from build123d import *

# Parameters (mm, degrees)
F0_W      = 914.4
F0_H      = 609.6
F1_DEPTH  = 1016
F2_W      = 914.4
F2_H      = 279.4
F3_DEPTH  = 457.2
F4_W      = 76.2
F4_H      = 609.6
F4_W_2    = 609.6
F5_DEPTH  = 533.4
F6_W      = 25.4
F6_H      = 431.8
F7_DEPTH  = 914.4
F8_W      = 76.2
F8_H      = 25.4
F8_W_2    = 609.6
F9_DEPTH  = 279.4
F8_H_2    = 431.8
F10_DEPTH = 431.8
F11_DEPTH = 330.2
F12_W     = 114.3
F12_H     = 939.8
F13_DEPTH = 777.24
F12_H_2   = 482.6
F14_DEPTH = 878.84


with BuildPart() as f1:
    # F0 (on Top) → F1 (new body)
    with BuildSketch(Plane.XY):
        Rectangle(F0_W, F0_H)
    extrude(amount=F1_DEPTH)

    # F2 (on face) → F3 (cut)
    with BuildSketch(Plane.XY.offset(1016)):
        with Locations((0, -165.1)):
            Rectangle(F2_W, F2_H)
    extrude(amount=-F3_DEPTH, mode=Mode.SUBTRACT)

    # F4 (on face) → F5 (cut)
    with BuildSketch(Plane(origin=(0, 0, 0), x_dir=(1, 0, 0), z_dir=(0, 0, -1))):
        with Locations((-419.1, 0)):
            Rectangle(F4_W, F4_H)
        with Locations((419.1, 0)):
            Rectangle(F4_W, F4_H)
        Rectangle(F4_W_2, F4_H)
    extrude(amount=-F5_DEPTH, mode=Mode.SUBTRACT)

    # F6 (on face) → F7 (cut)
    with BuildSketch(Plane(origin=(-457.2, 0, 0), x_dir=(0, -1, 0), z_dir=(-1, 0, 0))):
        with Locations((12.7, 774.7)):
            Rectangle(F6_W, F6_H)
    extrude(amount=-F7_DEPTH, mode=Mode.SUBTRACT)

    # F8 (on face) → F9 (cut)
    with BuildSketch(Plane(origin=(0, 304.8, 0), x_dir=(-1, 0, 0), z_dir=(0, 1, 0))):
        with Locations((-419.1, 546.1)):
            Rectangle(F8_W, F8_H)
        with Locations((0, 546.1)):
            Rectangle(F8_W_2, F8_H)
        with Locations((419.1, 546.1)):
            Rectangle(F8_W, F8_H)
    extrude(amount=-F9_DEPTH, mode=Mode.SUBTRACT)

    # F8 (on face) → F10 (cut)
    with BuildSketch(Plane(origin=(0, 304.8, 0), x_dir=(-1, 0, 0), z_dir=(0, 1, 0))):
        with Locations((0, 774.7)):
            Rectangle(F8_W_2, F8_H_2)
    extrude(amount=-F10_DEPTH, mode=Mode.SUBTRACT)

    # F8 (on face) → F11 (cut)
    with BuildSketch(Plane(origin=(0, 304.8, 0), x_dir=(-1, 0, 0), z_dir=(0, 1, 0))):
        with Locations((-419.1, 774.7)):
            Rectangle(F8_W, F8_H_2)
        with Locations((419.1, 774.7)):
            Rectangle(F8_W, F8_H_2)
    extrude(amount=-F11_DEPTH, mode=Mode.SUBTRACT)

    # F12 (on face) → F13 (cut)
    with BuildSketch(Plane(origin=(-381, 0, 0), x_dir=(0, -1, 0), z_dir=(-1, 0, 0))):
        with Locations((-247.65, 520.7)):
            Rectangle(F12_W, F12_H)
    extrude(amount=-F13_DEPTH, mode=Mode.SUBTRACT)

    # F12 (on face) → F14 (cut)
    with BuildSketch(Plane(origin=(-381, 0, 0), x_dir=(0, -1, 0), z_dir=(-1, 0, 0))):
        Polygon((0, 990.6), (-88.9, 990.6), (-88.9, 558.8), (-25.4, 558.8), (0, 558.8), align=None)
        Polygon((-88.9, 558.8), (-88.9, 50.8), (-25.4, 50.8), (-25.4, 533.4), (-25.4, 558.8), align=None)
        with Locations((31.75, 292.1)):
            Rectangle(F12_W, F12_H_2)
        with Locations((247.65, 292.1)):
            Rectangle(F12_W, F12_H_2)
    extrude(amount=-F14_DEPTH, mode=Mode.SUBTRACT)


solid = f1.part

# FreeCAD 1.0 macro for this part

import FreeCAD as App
import Part
import Sketcher
from FreeCAD import Vector
Q = App.Units.Quantity

doc = App.newDocument("Part")
body = doc.addObject("PartDesign::Body", "Body")

# Sketch on XY plane
sketch1 = doc.addObject("Sketcher::SketchObject", "Sketch")
body.addObject(sketch1)
sketch1.AttachmentSupport = (doc.XY_Plane, [""])
sketch1.MapMode = "FlatFace"
sketch1.addGeometry(Part.LineSegment(Vector(-457, 305, 0), Vector(-457, -305, 0)), False)
sketch1.addGeometry(Part.LineSegment(Vector(-457, -305, 0), Vector(457, -305, 0)), False)
sketch1.addGeometry(Part.LineSegment(Vector(457, -305, 0), Vector(457, 305, 0)), False)
sketch1.addGeometry(Part.LineSegment(Vector(457, 305, 0), Vector(-457, 305, 0)), False)
sketch1.addConstraint(Sketcher.Constraint("Coincident", 0, 2, 1, 1))
sketch1.addConstraint(Sketcher.Constraint("Coincident", 1, 2, 2, 1))
sketch1.addConstraint(Sketcher.Constraint("Coincident", 2, 2, 3, 1))
sketch1.addConstraint(Sketcher.Constraint("Coincident", 3, 2, 0, 1))
sketch1.addConstraint(Sketcher.Constraint("Vertical", 0))
sketch1.addConstraint(Sketcher.Constraint("Horizontal", 1))
sketch1.addConstraint(Sketcher.Constraint("Vertical", 2))
sketch1.addConstraint(Sketcher.Constraint("Horizontal", 3))
sketch1.addConstraint(Sketcher.Constraint("Symmetric", 0, 2, 2, 2, -1, 1))
sketch1.addConstraint(Sketcher.Constraint("DistanceX", 1, 1, 1, 2, Q("36 in")))
sketch1.addConstraint(Sketcher.Constraint("DistanceY", 0, 2, 0, 1, Q("24 in")))
pad1 = doc.addObject("PartDesign::Pad", "Pad")
body.addObject(pad1)
pad1.Profile = sketch1
pad1.Length = Q("40 in")

# Sketch on XY plane
sketch2 = doc.addObject("Sketcher::SketchObject", "Sketch001")
body.addObject(sketch2)
sketch2.AttachmentSupport = (doc.XY_Plane, [""])
sketch2.MapMode = "FlatFace"
sketch2.AttachmentOffset = App.Placement(Vector(0, 0, 40 * 25.4), App.Rotation())
sketch2.addGeometry(Part.LineSegment(Vector(-457, -25, 0), Vector(-457, -305, 0)), False)
sketch2.addGeometry(Part.LineSegment(Vector(-457, -305, 0), Vector(457, -305, 0)), False)
sketch2.addGeometry(Part.LineSegment(Vector(457, -305, 0), Vector(457, -25, 0)), False)
sketch2.addGeometry(Part.LineSegment(Vector(457, -25, 0), Vector(-457, -25, 0)), False)
sketch2.addConstraint(Sketcher.Constraint("Coincident", 0, 2, 1, 1))
sketch2.addConstraint(Sketcher.Constraint("Coincident", 1, 2, 2, 1))
sketch2.addConstraint(Sketcher.Constraint("Coincident", 2, 2, 3, 1))
sketch2.addConstraint(Sketcher.Constraint("Coincident", 3, 2, 0, 1))
sketch2.addConstraint(Sketcher.Constraint("Vertical", 0))
sketch2.addConstraint(Sketcher.Constraint("Horizontal", 1))
sketch2.addConstraint(Sketcher.Constraint("Vertical", 2))
sketch2.addConstraint(Sketcher.Constraint("Horizontal", 3))
sketch2.addConstraint(Sketcher.Constraint("DistanceX", 1, 1, 1, 2, Q("36 in")))
sketch2.addConstraint(Sketcher.Constraint("DistanceY", 0, 2, 0, 1, Q("11 in")))
sketch2.addConstraint(Sketcher.Constraint("DistanceX", 0, 2, -1, 1, Q("18 in")))
sketch2.addConstraint(Sketcher.Constraint("DistanceY", 0, 2, -1, 1, Q("12 in")))
pocket1 = doc.addObject("PartDesign::Pocket", "Pocket")
body.addObject(pocket1)
pocket1.Profile = sketch2
pocket1.Length = Q("18 in")

# Sketch on XY plane
sketch3 = doc.addObject("Sketcher::SketchObject", "Sketch002")
body.addObject(sketch3)
sketch3.AttachmentSupport = (doc.XY_Plane, [""])
sketch3.MapMode = "FlatFace"
sketch3.addGeometry(Part.LineSegment(Vector(-457, -305, 0), Vector(-457, 305, 0)), False)
sketch3.addGeometry(Part.LineSegment(Vector(-457, 305, 0), Vector(-381, 305, 0)), False)
sketch3.addGeometry(Part.LineSegment(Vector(-381, 305, 0), Vector(-381, -305, 0)), False)
sketch3.addGeometry(Part.LineSegment(Vector(-381, -305, 0), Vector(-457, -305, 0)), False)
sketch3.addGeometry(Part.LineSegment(Vector(381, -305, 0), Vector(381, 305, 0)), False)
sketch3.addGeometry(Part.LineSegment(Vector(381, 305, 0), Vector(457, 305, 0)), False)
sketch3.addGeometry(Part.LineSegment(Vector(457, 305, 0), Vector(457, -305, 0)), False)
sketch3.addGeometry(Part.LineSegment(Vector(457, -305, 0), Vector(381, -305, 0)), False)
sketch3.addGeometry(Part.LineSegment(Vector(-305, -305, 0), Vector(-305, 305, 0)), False)
sketch3.addGeometry(Part.LineSegment(Vector(-305, 305, 0), Vector(305, 305, 0)), False)
sketch3.addGeometry(Part.LineSegment(Vector(305, 305, 0), Vector(305, -305, 0)), False)
sketch3.addGeometry(Part.LineSegment(Vector(305, -305, 0), Vector(-305, -305, 0)), False)
sketch3.addConstraint(Sketcher.Constraint("Coincident", 0, 2, 1, 1))
sketch3.addConstraint(Sketcher.Constraint("Coincident", 1, 2, 2, 1))
sketch3.addConstraint(Sketcher.Constraint("Coincident", 2, 2, 3, 1))
sketch3.addConstraint(Sketcher.Constraint("Coincident", 3, 2, 0, 1))
sketch3.addConstraint(Sketcher.Constraint("Coincident", 4, 2, 5, 1))
sketch3.addConstraint(Sketcher.Constraint("Coincident", 5, 2, 6, 1))
sketch3.addConstraint(Sketcher.Constraint("Coincident", 6, 2, 7, 1))
sketch3.addConstraint(Sketcher.Constraint("Coincident", 7, 2, 4, 1))
sketch3.addConstraint(Sketcher.Constraint("Coincident", 8, 2, 9, 1))
sketch3.addConstraint(Sketcher.Constraint("Coincident", 9, 2, 10, 1))
sketch3.addConstraint(Sketcher.Constraint("Coincident", 10, 2, 11, 1))
sketch3.addConstraint(Sketcher.Constraint("Coincident", 11, 2, 8, 1))
sketch3.addConstraint(Sketcher.Constraint("Vertical", 0))
sketch3.addConstraint(Sketcher.Constraint("Horizontal", 1))
sketch3.addConstraint(Sketcher.Constraint("Vertical", 2))
sketch3.addConstraint(Sketcher.Constraint("Horizontal", 3))
sketch3.addConstraint(Sketcher.Constraint("Vertical", 4))
sketch3.addConstraint(Sketcher.Constraint("Horizontal", 5))
sketch3.addConstraint(Sketcher.Constraint("Vertical", 6))
sketch3.addConstraint(Sketcher.Constraint("Horizontal", 7))
sketch3.addConstraint(Sketcher.Constraint("Vertical", 8))
sketch3.addConstraint(Sketcher.Constraint("Horizontal", 9))
sketch3.addConstraint(Sketcher.Constraint("Vertical", 10))
sketch3.addConstraint(Sketcher.Constraint("Horizontal", 11))
sketch3.addConstraint(Sketcher.Constraint("Symmetric", 2, 2, 4, 2, -1, 1))
sketch3.addConstraint(Sketcher.Constraint("Symmetric", 0, 2, 6, 2, -1, 1))
sketch3.addConstraint(Sketcher.Constraint("Symmetric", 8, 2, 10, 2, -1, 1))
sketch3.addConstraint(Sketcher.Constraint("Horizontal", 1, 2, 4, 2))
sketch3.addConstraint(Sketcher.Constraint("Horizontal", 5, 2, 8, 2))
sketch3.addConstraint(Sketcher.Constraint("Equal", 11, 0))
sketch3.addConstraint(Sketcher.Constraint("DistanceX", 1, 1, 1, 2, Q("3 in")))
sketch3.addConstraint(Sketcher.Constraint("DistanceX", 9, 1, 9, 2, Q("24 in")))
sketch3.addConstraint(Sketcher.Constraint("DistanceX", 0, 2, -1, 1, Q("18 in")))
pocket2 = doc.addObject("PartDesign::Pocket", "Pocket001")
body.addObject(pocket2)
pocket2.Profile = sketch3
pocket2.Length = Q("21 in")
pocket2.Reversed = True

# Sketch on YZ plane
sketch4 = doc.addObject("Sketcher::SketchObject", "Sketch003")
body.addObject(sketch4)
sketch4.AttachmentSupport = (doc.YZ_Plane, [""])
sketch4.MapMode = "FlatFace"
sketch4.AttachmentOffset = App.Placement(Vector(0, 0, -18 * 25.4), App.Rotation())
sketch4.addGeometry(Part.LineSegment(Vector(0, 991, 0), Vector(0, 559, 0)), False)
sketch4.addGeometry(Part.LineSegment(Vector(0, 559, 0), Vector(-25, 559, 0)), False)
sketch4.addGeometry(Part.LineSegment(Vector(-25, 559, 0), Vector(-25, 991, 0)), False)
sketch4.addGeometry(Part.LineSegment(Vector(-25, 991, 0), Vector(0, 991, 0)), False)
sketch4.addConstraint(Sketcher.Constraint("Coincident", 0, 2, 1, 1))
sketch4.addConstraint(Sketcher.Constraint("Coincident", 1, 2, 2, 1))
sketch4.addConstraint(Sketcher.Constraint("Coincident", 2, 2, 3, 1))
sketch4.addConstraint(Sketcher.Constraint("Coincident", 3, 2, 0, 1))
sketch4.addConstraint(Sketcher.Constraint("Vertical", 0))
sketch4.addConstraint(Sketcher.Constraint("Horizontal", 1))
sketch4.addConstraint(Sketcher.Constraint("Vertical", 2))
sketch4.addConstraint(Sketcher.Constraint("Horizontal", 3))
sketch4.addConstraint(Sketcher.Constraint("PointOnObject", 0, 2, -2))
sketch4.addConstraint(Sketcher.Constraint("DistanceX", 1, 2, 1, 1, Q("1 in")))
sketch4.addConstraint(Sketcher.Constraint("DistanceY", 0, 2, 0, 1, Q("17 in")))
sketch4.addConstraint(Sketcher.Constraint("DistanceY", -1, 1, 0, 2, Q("22 in")))
pocket3 = doc.addObject("PartDesign::Pocket", "Pocket002")
body.addObject(pocket3)
pocket3.Profile = sketch4
pocket3.Length = Q("36 in")
pocket3.Reversed = True

# Sketch on XZ plane
sketch5 = doc.addObject("Sketcher::SketchObject", "Sketch004")
body.addObject(sketch5)
sketch5.AttachmentSupport = (doc.XZ_Plane, [""])
sketch5.MapMode = "FlatFace"
sketch5.AttachmentOffset = App.Placement(Vector(0, 0, -12 * 25.4), App.Rotation())
sketch5.addGeometry(Part.LineSegment(Vector(457, 559, 0), Vector(457, 533, 0)), False)
sketch5.addGeometry(Part.LineSegment(Vector(457, 533, 0), Vector(381, 533, 0)), False)
sketch5.addGeometry(Part.LineSegment(Vector(381, 533, 0), Vector(381, 559, 0)), False)
sketch5.addGeometry(Part.LineSegment(Vector(381, 559, 0), Vector(457, 559, 0)), False)
sketch5.addGeometry(Part.LineSegment(Vector(305, 559, 0), Vector(305, 533, 0)), False)
sketch5.addGeometry(Part.LineSegment(Vector(305, 533, 0), Vector(-305, 533, 0)), False)
sketch5.addGeometry(Part.LineSegment(Vector(-305, 533, 0), Vector(-305, 559, 0)), False)
sketch5.addGeometry(Part.LineSegment(Vector(-305, 559, 0), Vector(305, 559, 0)), False)
sketch5.addGeometry(Part.LineSegment(Vector(-381, 559, 0), Vector(-381, 533, 0)), False)
sketch5.addGeometry(Part.LineSegment(Vector(-381, 533, 0), Vector(-457, 533, 0)), False)
sketch5.addGeometry(Part.LineSegment(Vector(-457, 533, 0), Vector(-457, 559, 0)), False)
sketch5.addGeometry(Part.LineSegment(Vector(-457, 559, 0), Vector(-381, 559, 0)), False)
sketch5.addConstraint(Sketcher.Constraint("Coincident", 0, 2, 1, 1))
sketch5.addConstraint(Sketcher.Constraint("Coincident", 1, 2, 2, 1))
sketch5.addConstraint(Sketcher.Constraint("Coincident", 2, 2, 3, 1))
sketch5.addConstraint(Sketcher.Constraint("Coincident", 3, 2, 0, 1))
sketch5.addConstraint(Sketcher.Constraint("Coincident", 4, 2, 5, 1))
sketch5.addConstraint(Sketcher.Constraint("Coincident", 5, 2, 6, 1))
sketch5.addConstraint(Sketcher.Constraint("Coincident", 6, 2, 7, 1))
sketch5.addConstraint(Sketcher.Constraint("Coincident", 7, 2, 4, 1))
sketch5.addConstraint(Sketcher.Constraint("Coincident", 8, 2, 9, 1))
sketch5.addConstraint(Sketcher.Constraint("Coincident", 9, 2, 10, 1))
sketch5.addConstraint(Sketcher.Constraint("Coincident", 10, 2, 11, 1))
sketch5.addConstraint(Sketcher.Constraint("Coincident", 11, 2, 8, 1))
sketch5.addConstraint(Sketcher.Constraint("Vertical", 0))
sketch5.addConstraint(Sketcher.Constraint("Horizontal", 1))
sketch5.addConstraint(Sketcher.Constraint("Vertical", 2))
sketch5.addConstraint(Sketcher.Constraint("Horizontal", 3))
sketch5.addConstraint(Sketcher.Constraint("Vertical", 4))
sketch5.addConstraint(Sketcher.Constraint("Horizontal", 5))
sketch5.addConstraint(Sketcher.Constraint("Vertical", 6))
sketch5.addConstraint(Sketcher.Constraint("Horizontal", 7))
sketch5.addConstraint(Sketcher.Constraint("Vertical", 8))
sketch5.addConstraint(Sketcher.Constraint("Horizontal", 9))
sketch5.addConstraint(Sketcher.Constraint("Vertical", 10))
sketch5.addConstraint(Sketcher.Constraint("Horizontal", 11))
sketch5.addConstraint(Sketcher.Constraint("Symmetric", 1, 2, 8, 2, -2))
sketch5.addConstraint(Sketcher.Constraint("Symmetric", 3, 2, 10, 2, -2))
sketch5.addConstraint(Sketcher.Constraint("Horizontal", 1, 2, 4, 2))
sketch5.addConstraint(Sketcher.Constraint("Horizontal", 3, 2, 6, 2))
sketch5.addConstraint(Sketcher.Constraint("DistanceX", 1, 2, 1, 1, Q("3 in")))
sketch5.addConstraint(Sketcher.Constraint("DistanceX", 5, 2, 5, 1, Q("24 in")))
sketch5.addConstraint(Sketcher.Constraint("DistanceY", 0, 2, 0, 1, Q("1 in")))
sketch5.addConstraint(Sketcher.Constraint("DistanceX", -1, 1, 0, 2, Q("18 in")))
sketch5.addConstraint(Sketcher.Constraint("DistanceY", -1, 1, 0, 2, Q("21 in")))
sketch5.addConstraint(Sketcher.Constraint("DistanceX", -1, 1, 4, 2, Q("12 in")))
pocket4 = doc.addObject("PartDesign::Pocket", "Pocket003")
body.addObject(pocket4)
pocket4.Profile = sketch5
pocket4.Length = Q("11 in")
pocket4.Reversed = True

# Sketch on XZ plane
sketch6 = doc.addObject("Sketcher::SketchObject", "Sketch005")
body.addObject(sketch6)
sketch6.AttachmentSupport = (doc.XZ_Plane, [""])
sketch6.MapMode = "FlatFace"
sketch6.AttachmentOffset = App.Placement(Vector(0, 0, -12 * 25.4), App.Rotation())
sketch6.addGeometry(Part.LineSegment(Vector(305, 991, 0), Vector(305, 559, 0)), False)
sketch6.addGeometry(Part.LineSegment(Vector(305, 559, 0), Vector(-305, 559, 0)), False)
sketch6.addGeometry(Part.LineSegment(Vector(-305, 559, 0), Vector(-305, 991, 0)), False)
sketch6.addGeometry(Part.LineSegment(Vector(-305, 991, 0), Vector(305, 991, 0)), False)
sketch6.addConstraint(Sketcher.Constraint("Coincident", 0, 2, 1, 1))
sketch6.addConstraint(Sketcher.Constraint("Coincident", 1, 2, 2, 1))
sketch6.addConstraint(Sketcher.Constraint("Coincident", 2, 2, 3, 1))
sketch6.addConstraint(Sketcher.Constraint("Coincident", 3, 2, 0, 1))
sketch6.addConstraint(Sketcher.Constraint("Vertical", 0))
sketch6.addConstraint(Sketcher.Constraint("Horizontal", 1))
sketch6.addConstraint(Sketcher.Constraint("Vertical", 2))
sketch6.addConstraint(Sketcher.Constraint("Horizontal", 3))
sketch6.addConstraint(Sketcher.Constraint("DistanceX", 1, 2, 1, 1, Q("24 in")))
sketch6.addConstraint(Sketcher.Constraint("DistanceY", 0, 2, 0, 1, Q("17 in")))
sketch6.addConstraint(Sketcher.Constraint("DistanceX", -1, 1, 0, 2, Q("12 in")))
sketch6.addConstraint(Sketcher.Constraint("DistanceY", -1, 1, 0, 2, Q("22 in")))
pocket5 = doc.addObject("PartDesign::Pocket", "Pocket004")
body.addObject(pocket5)
pocket5.Profile = sketch6
pocket5.Length = Q("17 in")
pocket5.Reversed = True

# Sketch on XZ plane
sketch7 = doc.addObject("Sketcher::SketchObject", "Sketch006")
body.addObject(sketch7)
sketch7.AttachmentSupport = (doc.XZ_Plane, [""])
sketch7.MapMode = "FlatFace"
sketch7.AttachmentOffset = App.Placement(Vector(0, 0, -12 * 25.4), App.Rotation())
sketch7.addGeometry(Part.LineSegment(Vector(457, 991, 0), Vector(457, 559, 0)), False)
sketch7.addGeometry(Part.LineSegment(Vector(457, 559, 0), Vector(381, 559, 0)), False)
sketch7.addGeometry(Part.LineSegment(Vector(381, 559, 0), Vector(381, 991, 0)), False)
sketch7.addGeometry(Part.LineSegment(Vector(381, 991, 0), Vector(457, 991, 0)), False)
sketch7.addGeometry(Part.LineSegment(Vector(-381, 991, 0), Vector(-381, 559, 0)), False)
sketch7.addGeometry(Part.LineSegment(Vector(-381, 559, 0), Vector(-457, 559, 0)), False)
sketch7.addGeometry(Part.LineSegment(Vector(-457, 559, 0), Vector(-457, 991, 0)), False)
sketch7.addGeometry(Part.LineSegment(Vector(-457, 991, 0), Vector(-381, 991, 0)), False)
sketch7.addConstraint(Sketcher.Constraint("Coincident", 0, 2, 1, 1))
sketch7.addConstraint(Sketcher.Constraint("Coincident", 1, 2, 2, 1))
sketch7.addConstraint(Sketcher.Constraint("Coincident", 2, 2, 3, 1))
sketch7.addConstraint(Sketcher.Constraint("Coincident", 3, 2, 0, 1))
sketch7.addConstraint(Sketcher.Constraint("Coincident", 4, 2, 5, 1))
sketch7.addConstraint(Sketcher.Constraint("Coincident", 5, 2, 6, 1))
sketch7.addConstraint(Sketcher.Constraint("Coincident", 6, 2, 7, 1))
sketch7.addConstraint(Sketcher.Constraint("Coincident", 7, 2, 4, 1))
sketch7.addConstraint(Sketcher.Constraint("Vertical", 0))
sketch7.addConstraint(Sketcher.Constraint("Horizontal", 1))
sketch7.addConstraint(Sketcher.Constraint("Vertical", 2))
sketch7.addConstraint(Sketcher.Constraint("Horizontal", 3))
sketch7.addConstraint(Sketcher.Constraint("Vertical", 4))
sketch7.addConstraint(Sketcher.Constraint("Horizontal", 5))
sketch7.addConstraint(Sketcher.Constraint("Vertical", 6))
sketch7.addConstraint(Sketcher.Constraint("Horizontal", 7))
sketch7.addConstraint(Sketcher.Constraint("Symmetric", 1, 2, 4, 2, -2))
sketch7.addConstraint(Sketcher.Constraint("Symmetric", 3, 2, 6, 2, -2))
sketch7.addConstraint(Sketcher.Constraint("DistanceX", 1, 2, 1, 1, Q("3 in")))
sketch7.addConstraint(Sketcher.Constraint("DistanceY", 0, 2, 0, 1, Q("17 in")))
sketch7.addConstraint(Sketcher.Constraint("DistanceX", -1, 1, 0, 2, Q("18 in")))
sketch7.addConstraint(Sketcher.Constraint("DistanceY", -1, 1, 0, 2, Q("22 in")))
pocket6 = doc.addObject("PartDesign::Pocket", "Pocket005")
body.addObject(pocket6)
pocket6.Profile = sketch7
pocket6.Length = Q("13 in")
pocket6.Reversed = True

# Sketch on YZ plane
sketch8 = doc.addObject("Sketcher::SketchObject", "Sketch007")
body.addObject(sketch8)
sketch8.AttachmentSupport = (doc.YZ_Plane, [""])
sketch8.MapMode = "FlatFace"
sketch8.AttachmentOffset = App.Placement(Vector(0, 0, -15 * 25.4), App.Rotation())
sketch8.addGeometry(Part.LineSegment(Vector(305, 991, 0), Vector(305, 51, 0)), False)
sketch8.addGeometry(Part.LineSegment(Vector(305, 51, 0), Vector(190, 51, 0)), False)
sketch8.addGeometry(Part.LineSegment(Vector(190, 51, 0), Vector(190, 991, 0)), False)
sketch8.addGeometry(Part.LineSegment(Vector(190, 991, 0), Vector(305, 991, 0)), False)
sketch8.addConstraint(Sketcher.Constraint("Coincident", 0, 2, 1, 1))
sketch8.addConstraint(Sketcher.Constraint("Coincident", 1, 2, 2, 1))
sketch8.addConstraint(Sketcher.Constraint("Coincident", 2, 2, 3, 1))
sketch8.addConstraint(Sketcher.Constraint("Coincident", 3, 2, 0, 1))
sketch8.addConstraint(Sketcher.Constraint("Vertical", 0))
sketch8.addConstraint(Sketcher.Constraint("Horizontal", 1))
sketch8.addConstraint(Sketcher.Constraint("Vertical", 2))
sketch8.addConstraint(Sketcher.Constraint("Horizontal", 3))
sketch8.addConstraint(Sketcher.Constraint("DistanceY", 0, 2, 0, 1, Q("37 in")))
sketch8.addConstraint(Sketcher.Constraint("DistanceX", 1, 2, 1, 1, Q("4.5 in")))
sketch8.addConstraint(Sketcher.Constraint("DistanceX", -1, 1, 0, 2, Q("12 in")))
sketch8.addConstraint(Sketcher.Constraint("DistanceY", -1, 1, 0, 2, Q("2 in")))
pocket7 = doc.addObject("PartDesign::Pocket", "Pocket006")
body.addObject(pocket7)
pocket7.Profile = sketch8
pocket7.Length = Q("30.6 in")
pocket7.Reversed = True

# Sketch on YZ plane
sketch9 = doc.addObject("Sketcher::SketchObject", "Sketch008")
body.addObject(sketch9)
sketch9.AttachmentSupport = (doc.YZ_Plane, [""])
sketch9.MapMode = "FlatFace"
sketch9.AttachmentOffset = App.Placement(Vector(0, 0, -15 * 25.4), App.Rotation())
sketch9.addGeometry(Part.LineSegment(Vector(0, 991, 0), Vector(89, 991, 0)), False)
sketch9.addGeometry(Part.LineSegment(Vector(89, 991, 0), Vector(89, 51, 0)), False)
sketch9.addGeometry(Part.LineSegment(Vector(89, 51, 0), Vector(-89, 51, 0)), False)
sketch9.addGeometry(Part.LineSegment(Vector(-89, 51, 0), Vector(-89, 533, 0)), False)
sketch9.addGeometry(Part.LineSegment(Vector(-89, 533, 0), Vector(25, 533, 0)), False)
sketch9.addGeometry(Part.LineSegment(Vector(25, 533, 0), Vector(25, 559, 0)), False)
sketch9.addGeometry(Part.LineSegment(Vector(25, 559, 0), Vector(0, 559, 0)), False)
sketch9.addGeometry(Part.LineSegment(Vector(0, 559, 0), Vector(0, 991, 0)), False)
sketch9.addGeometry(Part.LineSegment(Vector(-190, 533, 0), Vector(-190, 51, 0)), False)
sketch9.addGeometry(Part.LineSegment(Vector(-190, 51, 0), Vector(-305, 51, 0)), False)
sketch9.addGeometry(Part.LineSegment(Vector(-305, 51, 0), Vector(-305, 533, 0)), False)
sketch9.addGeometry(Part.LineSegment(Vector(-305, 533, 0), Vector(-190, 533, 0)), False)
sketch9.addConstraint(Sketcher.Constraint("Coincident", 0, 2, 1, 1))
sketch9.addConstraint(Sketcher.Constraint("Coincident", 1, 2, 2, 1))
sketch9.addConstraint(Sketcher.Constraint("Coincident", 2, 2, 3, 1))
sketch9.addConstraint(Sketcher.Constraint("Coincident", 3, 2, 4, 1))
sketch9.addConstraint(Sketcher.Constraint("Coincident", 4, 2, 5, 1))
sketch9.addConstraint(Sketcher.Constraint("Coincident", 5, 2, 6, 1))
sketch9.addConstraint(Sketcher.Constraint("Coincident", 6, 2, 7, 1))
sketch9.addConstraint(Sketcher.Constraint("Coincident", 7, 2, 0, 1))
sketch9.addConstraint(Sketcher.Constraint("Coincident", 8, 2, 9, 1))
sketch9.addConstraint(Sketcher.Constraint("Coincident", 9, 2, 10, 1))
sketch9.addConstraint(Sketcher.Constraint("Coincident", 10, 2, 11, 1))
sketch9.addConstraint(Sketcher.Constraint("Coincident", 11, 2, 8, 1))
sketch9.addConstraint(Sketcher.Constraint("Horizontal", 0))
sketch9.addConstraint(Sketcher.Constraint("Vertical", 1))
sketch9.addConstraint(Sketcher.Constraint("Horizontal", 2))
sketch9.addConstraint(Sketcher.Constraint("Vertical", 3))
sketch9.addConstraint(Sketcher.Constraint("Horizontal", 4))
sketch9.addConstraint(Sketcher.Constraint("Vertical", 5))
sketch9.addConstraint(Sketcher.Constraint("Horizontal", 6))
sketch9.addConstraint(Sketcher.Constraint("Vertical", 7))
sketch9.addConstraint(Sketcher.Constraint("Vertical", 8))
sketch9.addConstraint(Sketcher.Constraint("Horizontal", 9))
sketch9.addConstraint(Sketcher.Constraint("Vertical", 10))
sketch9.addConstraint(Sketcher.Constraint("Horizontal", 11))
sketch9.addConstraint(Sketcher.Constraint("PointOnObject", 6, 2, -2))
sketch9.addConstraint(Sketcher.Constraint("Horizontal", 2, 2, 8, 2))
sketch9.addConstraint(Sketcher.Constraint("Horizontal", 4, 2, 10, 2))
sketch9.addConstraint(Sketcher.Constraint("Equal", 4, 9))
sketch9.addConstraint(Sketcher.Constraint("Equal", 6, 5))
sketch9.addConstraint(Sketcher.Constraint("DistanceX", 2, 2, 2, 1, Q("7 in")))
sketch9.addConstraint(Sketcher.Constraint("DistanceX", 6, 2, 6, 1, Q("1 in")))
sketch9.addConstraint(Sketcher.Constraint("DistanceY", 1, 2, 1, 1, Q("37 in")))
sketch9.addConstraint(Sketcher.Constraint("DistanceY", 3, 1, 3, 2, Q("19 in")))
sketch9.addConstraint(Sketcher.Constraint("DistanceX", 0, 1, 0, 2, Q("3.5 in")))
sketch9.addConstraint(Sketcher.Constraint("DistanceY", -1, 1, 0, 2, Q("39 in")))
sketch9.addConstraint(Sketcher.Constraint("DistanceX", 9, 2, -1, 1, Q("12 in")))
pocket8 = doc.addObject("PartDesign::Pocket", "Pocket007")
body.addObject(pocket8)
pocket8.Profile = sketch9
pocket8.Length = Q("34.6 in")
pocket8.Reversed = True

doc.recompute()
